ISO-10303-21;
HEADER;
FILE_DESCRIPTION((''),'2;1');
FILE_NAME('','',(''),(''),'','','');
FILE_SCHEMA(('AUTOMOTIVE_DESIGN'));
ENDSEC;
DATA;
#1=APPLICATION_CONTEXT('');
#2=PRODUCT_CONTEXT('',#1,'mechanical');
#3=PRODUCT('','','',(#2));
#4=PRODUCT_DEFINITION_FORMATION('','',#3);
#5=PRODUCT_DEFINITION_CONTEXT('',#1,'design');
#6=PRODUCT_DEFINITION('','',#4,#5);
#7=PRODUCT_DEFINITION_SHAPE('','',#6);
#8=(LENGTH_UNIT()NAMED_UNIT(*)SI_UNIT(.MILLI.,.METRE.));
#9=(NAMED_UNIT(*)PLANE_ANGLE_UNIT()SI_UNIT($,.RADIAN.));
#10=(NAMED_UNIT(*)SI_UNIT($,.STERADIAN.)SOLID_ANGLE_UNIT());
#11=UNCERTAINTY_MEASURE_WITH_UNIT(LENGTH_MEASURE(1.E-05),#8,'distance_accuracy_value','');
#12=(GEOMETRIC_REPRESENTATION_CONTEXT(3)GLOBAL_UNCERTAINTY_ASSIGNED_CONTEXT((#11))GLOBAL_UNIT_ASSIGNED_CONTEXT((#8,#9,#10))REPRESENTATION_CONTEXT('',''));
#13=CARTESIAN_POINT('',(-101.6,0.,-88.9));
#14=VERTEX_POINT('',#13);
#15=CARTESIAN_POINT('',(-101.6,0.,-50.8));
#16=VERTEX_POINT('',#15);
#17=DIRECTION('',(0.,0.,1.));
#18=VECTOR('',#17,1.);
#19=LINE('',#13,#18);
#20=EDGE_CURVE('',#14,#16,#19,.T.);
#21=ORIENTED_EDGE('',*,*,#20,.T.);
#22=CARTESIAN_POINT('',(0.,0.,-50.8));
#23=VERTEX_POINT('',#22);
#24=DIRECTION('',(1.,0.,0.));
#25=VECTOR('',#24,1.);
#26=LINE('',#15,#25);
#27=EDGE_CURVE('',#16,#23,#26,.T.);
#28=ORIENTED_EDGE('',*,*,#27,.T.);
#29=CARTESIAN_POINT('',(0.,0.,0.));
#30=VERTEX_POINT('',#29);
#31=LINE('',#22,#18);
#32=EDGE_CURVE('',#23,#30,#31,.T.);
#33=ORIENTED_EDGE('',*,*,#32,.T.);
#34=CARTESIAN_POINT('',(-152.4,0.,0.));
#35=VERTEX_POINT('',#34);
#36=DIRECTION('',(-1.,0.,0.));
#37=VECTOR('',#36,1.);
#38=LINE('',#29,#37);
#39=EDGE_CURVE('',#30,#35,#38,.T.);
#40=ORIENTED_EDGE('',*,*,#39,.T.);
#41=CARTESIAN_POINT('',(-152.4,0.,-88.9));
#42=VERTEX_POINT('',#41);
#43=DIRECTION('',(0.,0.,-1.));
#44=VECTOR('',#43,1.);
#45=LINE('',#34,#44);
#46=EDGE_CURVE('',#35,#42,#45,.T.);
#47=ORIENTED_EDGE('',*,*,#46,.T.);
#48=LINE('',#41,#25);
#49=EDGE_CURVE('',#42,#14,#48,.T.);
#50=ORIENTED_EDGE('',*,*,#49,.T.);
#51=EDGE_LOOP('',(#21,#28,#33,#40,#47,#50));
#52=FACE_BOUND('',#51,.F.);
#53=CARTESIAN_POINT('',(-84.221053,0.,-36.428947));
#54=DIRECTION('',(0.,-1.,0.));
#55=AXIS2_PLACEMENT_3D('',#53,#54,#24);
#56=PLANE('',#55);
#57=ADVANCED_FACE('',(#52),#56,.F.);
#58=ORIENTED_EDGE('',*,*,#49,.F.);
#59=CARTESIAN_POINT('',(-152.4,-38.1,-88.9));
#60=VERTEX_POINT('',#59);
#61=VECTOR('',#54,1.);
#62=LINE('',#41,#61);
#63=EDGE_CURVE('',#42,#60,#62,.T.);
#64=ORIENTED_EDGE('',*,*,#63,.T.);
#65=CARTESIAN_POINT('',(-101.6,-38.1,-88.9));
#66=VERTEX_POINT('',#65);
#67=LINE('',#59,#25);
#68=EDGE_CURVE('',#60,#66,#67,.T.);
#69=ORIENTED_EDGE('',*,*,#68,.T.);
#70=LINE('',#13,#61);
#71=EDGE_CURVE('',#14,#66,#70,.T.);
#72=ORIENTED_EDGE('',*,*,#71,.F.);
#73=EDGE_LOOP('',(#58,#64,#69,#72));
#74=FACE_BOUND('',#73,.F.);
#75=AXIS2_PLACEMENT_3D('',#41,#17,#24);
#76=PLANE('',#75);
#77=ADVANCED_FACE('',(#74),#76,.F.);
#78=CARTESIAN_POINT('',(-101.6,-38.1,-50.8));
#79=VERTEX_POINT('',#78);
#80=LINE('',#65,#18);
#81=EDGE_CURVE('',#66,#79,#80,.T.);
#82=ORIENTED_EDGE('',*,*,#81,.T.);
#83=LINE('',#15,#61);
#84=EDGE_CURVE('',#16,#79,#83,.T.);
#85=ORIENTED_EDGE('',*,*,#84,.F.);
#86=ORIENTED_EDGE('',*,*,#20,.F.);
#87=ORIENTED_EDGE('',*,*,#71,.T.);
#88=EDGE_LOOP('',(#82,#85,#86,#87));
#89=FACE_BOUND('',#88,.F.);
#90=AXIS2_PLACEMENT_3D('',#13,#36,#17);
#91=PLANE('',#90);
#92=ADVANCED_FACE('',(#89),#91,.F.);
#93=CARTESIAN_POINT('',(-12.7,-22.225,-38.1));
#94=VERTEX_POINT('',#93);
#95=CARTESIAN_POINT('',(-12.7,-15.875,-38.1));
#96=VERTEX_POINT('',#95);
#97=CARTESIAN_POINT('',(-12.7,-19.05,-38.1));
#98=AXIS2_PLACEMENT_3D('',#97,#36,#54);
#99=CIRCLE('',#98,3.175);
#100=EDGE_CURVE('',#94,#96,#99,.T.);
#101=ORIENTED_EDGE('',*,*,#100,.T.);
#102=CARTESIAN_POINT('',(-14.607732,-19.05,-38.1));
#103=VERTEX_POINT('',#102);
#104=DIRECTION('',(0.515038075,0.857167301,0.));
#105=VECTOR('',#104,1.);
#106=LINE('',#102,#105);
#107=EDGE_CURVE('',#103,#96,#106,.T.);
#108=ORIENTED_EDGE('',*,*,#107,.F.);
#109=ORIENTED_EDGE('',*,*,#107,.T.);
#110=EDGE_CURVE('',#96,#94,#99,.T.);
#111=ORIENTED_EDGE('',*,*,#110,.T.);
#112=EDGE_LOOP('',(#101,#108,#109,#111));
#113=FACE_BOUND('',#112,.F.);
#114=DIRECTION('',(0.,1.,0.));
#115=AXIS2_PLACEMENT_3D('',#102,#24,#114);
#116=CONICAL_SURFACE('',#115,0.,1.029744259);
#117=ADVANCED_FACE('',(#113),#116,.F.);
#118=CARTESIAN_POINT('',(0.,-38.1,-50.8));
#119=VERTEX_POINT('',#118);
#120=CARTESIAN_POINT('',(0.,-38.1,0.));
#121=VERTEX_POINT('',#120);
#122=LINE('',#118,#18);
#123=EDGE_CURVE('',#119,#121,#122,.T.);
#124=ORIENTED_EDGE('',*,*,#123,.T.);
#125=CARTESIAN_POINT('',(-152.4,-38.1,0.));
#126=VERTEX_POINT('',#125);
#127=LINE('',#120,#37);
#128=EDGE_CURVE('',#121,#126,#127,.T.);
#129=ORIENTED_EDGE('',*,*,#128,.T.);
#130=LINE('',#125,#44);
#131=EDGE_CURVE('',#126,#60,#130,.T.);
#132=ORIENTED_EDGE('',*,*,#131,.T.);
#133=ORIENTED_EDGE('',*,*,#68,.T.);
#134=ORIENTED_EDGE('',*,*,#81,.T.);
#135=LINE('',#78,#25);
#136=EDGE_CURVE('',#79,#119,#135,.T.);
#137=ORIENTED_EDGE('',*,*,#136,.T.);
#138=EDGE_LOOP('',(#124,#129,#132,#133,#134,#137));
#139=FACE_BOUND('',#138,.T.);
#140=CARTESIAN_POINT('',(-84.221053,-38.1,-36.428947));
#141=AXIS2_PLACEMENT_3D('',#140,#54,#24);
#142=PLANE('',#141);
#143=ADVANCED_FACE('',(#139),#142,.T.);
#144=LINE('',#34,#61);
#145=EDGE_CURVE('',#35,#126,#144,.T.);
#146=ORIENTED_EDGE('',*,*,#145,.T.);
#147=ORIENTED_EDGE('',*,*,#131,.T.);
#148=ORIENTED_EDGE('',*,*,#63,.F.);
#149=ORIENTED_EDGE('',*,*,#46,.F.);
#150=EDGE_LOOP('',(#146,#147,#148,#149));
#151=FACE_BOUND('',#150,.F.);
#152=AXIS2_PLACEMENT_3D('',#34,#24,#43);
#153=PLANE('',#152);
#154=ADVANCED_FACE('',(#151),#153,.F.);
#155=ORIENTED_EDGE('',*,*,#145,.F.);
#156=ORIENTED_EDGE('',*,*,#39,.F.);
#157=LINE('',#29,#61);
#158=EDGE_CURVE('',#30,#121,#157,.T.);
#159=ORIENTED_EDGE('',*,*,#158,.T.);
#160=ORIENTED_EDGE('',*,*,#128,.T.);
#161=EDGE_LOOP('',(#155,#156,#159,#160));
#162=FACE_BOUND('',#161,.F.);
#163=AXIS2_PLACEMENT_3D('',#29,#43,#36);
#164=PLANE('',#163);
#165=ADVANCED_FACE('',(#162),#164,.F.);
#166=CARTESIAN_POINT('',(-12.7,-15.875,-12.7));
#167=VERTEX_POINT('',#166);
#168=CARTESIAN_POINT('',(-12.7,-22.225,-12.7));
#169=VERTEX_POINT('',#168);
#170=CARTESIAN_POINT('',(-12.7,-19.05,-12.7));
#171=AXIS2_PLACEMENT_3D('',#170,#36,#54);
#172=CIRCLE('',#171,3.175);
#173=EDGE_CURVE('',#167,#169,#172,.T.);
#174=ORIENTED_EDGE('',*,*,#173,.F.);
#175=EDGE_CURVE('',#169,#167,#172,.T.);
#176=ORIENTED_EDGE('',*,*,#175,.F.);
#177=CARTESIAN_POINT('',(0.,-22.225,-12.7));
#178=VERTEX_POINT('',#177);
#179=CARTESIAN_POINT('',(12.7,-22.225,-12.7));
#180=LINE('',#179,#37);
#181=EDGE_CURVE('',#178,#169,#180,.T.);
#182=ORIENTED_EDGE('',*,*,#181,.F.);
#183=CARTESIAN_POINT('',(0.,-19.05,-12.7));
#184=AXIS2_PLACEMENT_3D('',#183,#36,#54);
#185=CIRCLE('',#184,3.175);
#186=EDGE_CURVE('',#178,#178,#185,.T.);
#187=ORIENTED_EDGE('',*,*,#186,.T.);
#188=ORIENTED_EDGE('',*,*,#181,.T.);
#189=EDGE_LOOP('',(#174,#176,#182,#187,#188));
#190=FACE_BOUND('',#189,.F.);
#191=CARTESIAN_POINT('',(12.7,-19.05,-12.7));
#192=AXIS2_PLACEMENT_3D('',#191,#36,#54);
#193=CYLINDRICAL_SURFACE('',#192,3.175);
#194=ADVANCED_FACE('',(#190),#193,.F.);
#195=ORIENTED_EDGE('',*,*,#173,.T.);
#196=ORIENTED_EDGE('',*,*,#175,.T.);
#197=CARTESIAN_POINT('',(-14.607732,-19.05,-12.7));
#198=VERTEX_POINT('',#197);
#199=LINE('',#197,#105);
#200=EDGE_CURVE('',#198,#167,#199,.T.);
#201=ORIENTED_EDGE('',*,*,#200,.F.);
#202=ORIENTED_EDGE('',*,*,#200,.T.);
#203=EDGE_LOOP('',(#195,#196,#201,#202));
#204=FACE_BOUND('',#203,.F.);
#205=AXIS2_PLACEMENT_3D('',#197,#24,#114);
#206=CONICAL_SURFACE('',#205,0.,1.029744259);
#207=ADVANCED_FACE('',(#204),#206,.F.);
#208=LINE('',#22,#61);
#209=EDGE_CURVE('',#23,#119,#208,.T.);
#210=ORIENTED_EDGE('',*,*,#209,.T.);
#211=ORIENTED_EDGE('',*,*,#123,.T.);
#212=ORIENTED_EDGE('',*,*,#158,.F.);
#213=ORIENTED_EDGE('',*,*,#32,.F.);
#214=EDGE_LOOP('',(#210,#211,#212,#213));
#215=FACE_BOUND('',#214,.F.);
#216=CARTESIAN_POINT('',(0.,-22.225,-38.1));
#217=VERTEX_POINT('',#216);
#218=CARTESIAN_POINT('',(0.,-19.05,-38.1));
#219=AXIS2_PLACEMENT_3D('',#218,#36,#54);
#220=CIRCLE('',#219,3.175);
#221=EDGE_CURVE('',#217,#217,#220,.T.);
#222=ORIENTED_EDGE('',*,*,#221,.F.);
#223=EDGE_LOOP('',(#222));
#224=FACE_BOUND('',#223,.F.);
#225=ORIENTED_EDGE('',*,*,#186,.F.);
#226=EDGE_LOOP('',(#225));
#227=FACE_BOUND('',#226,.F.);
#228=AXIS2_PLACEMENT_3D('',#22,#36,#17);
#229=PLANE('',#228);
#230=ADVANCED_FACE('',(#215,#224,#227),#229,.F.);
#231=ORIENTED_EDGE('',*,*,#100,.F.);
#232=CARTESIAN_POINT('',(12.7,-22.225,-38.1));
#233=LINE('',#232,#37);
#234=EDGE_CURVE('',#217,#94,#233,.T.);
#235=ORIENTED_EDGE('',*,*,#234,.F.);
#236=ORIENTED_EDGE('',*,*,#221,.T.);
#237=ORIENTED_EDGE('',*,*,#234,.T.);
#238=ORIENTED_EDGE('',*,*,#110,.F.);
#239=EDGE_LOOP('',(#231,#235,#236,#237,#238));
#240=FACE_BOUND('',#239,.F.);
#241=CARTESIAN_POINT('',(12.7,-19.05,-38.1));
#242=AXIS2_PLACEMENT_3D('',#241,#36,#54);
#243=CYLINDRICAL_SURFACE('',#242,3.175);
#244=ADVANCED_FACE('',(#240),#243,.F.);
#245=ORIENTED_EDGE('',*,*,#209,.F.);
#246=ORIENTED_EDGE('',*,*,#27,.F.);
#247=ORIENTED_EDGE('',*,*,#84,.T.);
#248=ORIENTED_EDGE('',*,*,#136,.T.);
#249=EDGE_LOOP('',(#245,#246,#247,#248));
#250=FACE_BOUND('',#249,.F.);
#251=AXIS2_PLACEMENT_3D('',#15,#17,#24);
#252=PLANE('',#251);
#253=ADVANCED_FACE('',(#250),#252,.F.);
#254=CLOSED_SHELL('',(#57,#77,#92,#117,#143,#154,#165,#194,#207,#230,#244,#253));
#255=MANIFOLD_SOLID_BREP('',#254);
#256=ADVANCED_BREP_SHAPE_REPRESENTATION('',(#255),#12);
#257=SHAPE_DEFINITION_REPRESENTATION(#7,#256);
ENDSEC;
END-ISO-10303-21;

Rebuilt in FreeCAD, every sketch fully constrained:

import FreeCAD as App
import Part
import Sketcher
Q = App.Units.Quantity


def add_polygon(sketch, points):
    """Adds a closed chain of lines whose ends are joined by coincident constraints."""
    first, n = sketch.GeometryCount, len(points)
    for a, b in zip(points, points[1:] + points[:1]):
        sketch.addGeometry(Part.LineSegment(App.Vector(*a, 0), App.Vector(*b, 0)), False)
    for i in range(n):
        sketch.addConstraint(Sketcher.Constraint("Coincident", first + i, 2, first + (i + 1) % n, 1))

doc = App.newDocument("Part")
params = doc.addObject("Spreadsheet::Sheet", "Params")
for row, (alias, value) in enumerate([
    ("sketch1_width", "6 in"),
    ("sketch1_width2", "2 in"),
    ("sketch1_height", "3.5 in"),
    ("pad1_length", "1.5 in"),
    ("sketch2_diameter", "0.25 in"),
    ("hole_diameter", "0.25 in"),
    ("hole_depth", "0.5 in"),
], start=1):
    params.set(f"A{row}", alias)
    params.set(f"B{row}", "=" + value)
    params.setAlias(f"B{row}", alias)

body = doc.addObject("PartDesign::Body", "Body")

sketch1 = body.newObject("Sketcher::SketchObject", "Sketch")
sketch1.AttachmentSupport = (doc.getObject("XZ_Plane"), [""])
sketch1.MapMode = "FlatFace"
add_polygon(sketch1, [(0, -50.8), (0, 0), (-152.4, 0), (-152.4, -88.9), (-101.6, -88.9), (-101.6, -50.8)])
sketch1.addConstraint(Sketcher.Constraint("Vertical", 0))
sketch1.addConstraint(Sketcher.Constraint("Horizontal", 1))
sketch1.addConstraint(Sketcher.Constraint("Vertical", 2))
sketch1.addConstraint(Sketcher.Constraint("Horizontal", 3))
sketch1.addConstraint(Sketcher.Constraint("Vertical", 4))
sketch1.addConstraint(Sketcher.Constraint("Horizontal", 5))
sketch1.addConstraint(Sketcher.Constraint("Coincident", 0, 2, -1, 1))
sketch1.addConstraint(Sketcher.Constraint("Equal", 3, 0))
sketch1.addConstraint(Sketcher.Constraint("DistanceX", 1, 2, 1, 1, Q("6 in")))
sketch1.addConstraint(Sketcher.Constraint("DistanceX", 3, 1, 3, 2, Q("2 in")))
sketch1.addConstraint(Sketcher.Constraint("DistanceY", 2, 2, 2, 1, Q("3.5 in")))
sketch1.setExpression("Constraints[14]", "Params.sketch1_width")
sketch1.setExpression("Constraints[15]", "Params.sketch1_width2")
sketch1.setExpression("Constraints[16]", "Params.sketch1_height")
pad1 = body.newObject("PartDesign::Pad", "Pad")
pad1.Profile = sketch1
pad1.setExpression("Length", "Params.pad1_length")

sketch2 = body.newObject("Sketcher::SketchObject", "Sketch001")
sketch2.AttachmentSupport = (doc.getObject("YZ_Plane"), [""])
sketch2.MapMode = "FlatFace"
sketch2.addGeometry(Part.Circle(App.Vector(-19.05, -12.7, 0), App.Vector(0, 0, 1), 3.175), False)
sketch2.addGeometry(Part.Circle(App.Vector(-19.05, -38.1, 0), App.Vector(0, 0, 1), 3.175), False)
sketch2.addConstraint(Sketcher.Constraint("Equal", 0, 1))
sketch2.addConstraint(Sketcher.Constraint("Vertical", 0, 3, 1, 3))
sketch2.addConstraint(Sketcher.Constraint("Diameter", 0, Q("0.25 in")))
sketch2.addConstraint(Sketcher.Constraint("DistanceY", 1, 3, 0, 3, Q("1 in")))
sketch2.addConstraint(Sketcher.Constraint("DistanceY", 0, 3, -1, 1, Q("0.5 in")))
sketch2.addConstraint(Sketcher.Constraint("DistanceX", 0, 3, -1, 1, Q("0.75 in")))
sketch2.setExpression("Constraints[2]", "Params.sketch2_diameter")
doc.recompute()
hole = body.newObject("PartDesign::Hole", "Hole")
hole.Profile = sketch2
hole.ThreadType = "None"
hole.setExpression("Diameter", "Params.hole_diameter")
hole.DepthType = "Dimension"
hole.setExpression("Depth", "Params.hole_depth")
hole.DrillPoint = "Angled"
hole.DrillPointAngle = 118

doc.recompute()
